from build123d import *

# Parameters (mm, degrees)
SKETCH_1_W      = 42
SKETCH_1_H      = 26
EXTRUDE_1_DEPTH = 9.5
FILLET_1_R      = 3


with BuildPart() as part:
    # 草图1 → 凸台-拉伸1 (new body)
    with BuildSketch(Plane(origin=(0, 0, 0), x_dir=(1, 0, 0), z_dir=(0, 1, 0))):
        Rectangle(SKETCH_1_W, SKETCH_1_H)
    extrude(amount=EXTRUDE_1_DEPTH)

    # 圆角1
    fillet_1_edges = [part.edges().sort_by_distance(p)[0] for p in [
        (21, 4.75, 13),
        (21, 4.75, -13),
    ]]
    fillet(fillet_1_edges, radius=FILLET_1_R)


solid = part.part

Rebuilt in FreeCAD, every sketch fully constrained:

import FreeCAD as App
import Part
import Sketcher

V = App.Vector
Q = App.Units.Quantity


def edges_at(feature, points):
    """Names of the edges that pass closest to the given points."""
    edges = feature.Shape.Edges
    near = lambda p: min(range(len(edges)), key=lambda i: edges[i].distToShape(Part.Vertex(*p))[0])
    return sorted({f"Edge{near(p) + 1}" for p in points})


def add_polygon(sketch, points):
    """Adds a closed chain of lines whose ends are joined by coincident constraints."""
    first, n = sketch.GeometryCount, len(points)
    for a, b in zip(points, points[1:] + points[:1]):
        sketch.addGeometry(Part.LineSegment(App.Vector(*a, 0), App.Vector(*b, 0)), False)
    for i in range(n):
        sketch.addConstraint(Sketcher.Constraint("Coincident", first + i, 2, first + (i + 1) % n, 1))

doc = App.newDocument("Part")
body = doc.addObject("PartDesign::Body", "Body")

# Sketch on XZ plane
sketch1 = body.newObject("Sketcher::SketchObject", "Sketch")
sketch1.AttachmentSupport = (doc.getObject("XZ_Plane"), [""])
sketch1.MapMode = "FlatFace"
add_polygon(sketch1, [(-21, -13), (-21, 13), (21, 13), (21, -13)])  # lines 0-3
sketch1.addConstraint([
    Sketcher.Constraint("Vertical", 0),
    Sketcher.Constraint("Horizontal", 1),
    Sketcher.Constraint("Vertical", 2),
    Sketcher.Constraint("Horizontal", 3),
    Sketcher.Constraint("Symmetric", 0, 2, 2, 2, -1, 1),
    Sketcher.Constraint("DistanceX", 1, 1, 1, 2, Q("42 mm")),
    Sketcher.Constraint("DistanceY", 0, 1, 0, 2, Q("26 mm")),
])
pad1 = body.newObject("PartDesign::Pad", "Pad")
pad1.Profile = sketch1
pad1.Length = 9.5
pad1.Reversed = True
doc.recompute()

fillet = body.newObject("PartDesign::Fillet", "Fillet")
fillet.Base = (pad1, edges_at(pad1, [(21, 4.75, 13), (21, 4.75, -13)]))
fillet.Radius = 3

doc.recompute()
